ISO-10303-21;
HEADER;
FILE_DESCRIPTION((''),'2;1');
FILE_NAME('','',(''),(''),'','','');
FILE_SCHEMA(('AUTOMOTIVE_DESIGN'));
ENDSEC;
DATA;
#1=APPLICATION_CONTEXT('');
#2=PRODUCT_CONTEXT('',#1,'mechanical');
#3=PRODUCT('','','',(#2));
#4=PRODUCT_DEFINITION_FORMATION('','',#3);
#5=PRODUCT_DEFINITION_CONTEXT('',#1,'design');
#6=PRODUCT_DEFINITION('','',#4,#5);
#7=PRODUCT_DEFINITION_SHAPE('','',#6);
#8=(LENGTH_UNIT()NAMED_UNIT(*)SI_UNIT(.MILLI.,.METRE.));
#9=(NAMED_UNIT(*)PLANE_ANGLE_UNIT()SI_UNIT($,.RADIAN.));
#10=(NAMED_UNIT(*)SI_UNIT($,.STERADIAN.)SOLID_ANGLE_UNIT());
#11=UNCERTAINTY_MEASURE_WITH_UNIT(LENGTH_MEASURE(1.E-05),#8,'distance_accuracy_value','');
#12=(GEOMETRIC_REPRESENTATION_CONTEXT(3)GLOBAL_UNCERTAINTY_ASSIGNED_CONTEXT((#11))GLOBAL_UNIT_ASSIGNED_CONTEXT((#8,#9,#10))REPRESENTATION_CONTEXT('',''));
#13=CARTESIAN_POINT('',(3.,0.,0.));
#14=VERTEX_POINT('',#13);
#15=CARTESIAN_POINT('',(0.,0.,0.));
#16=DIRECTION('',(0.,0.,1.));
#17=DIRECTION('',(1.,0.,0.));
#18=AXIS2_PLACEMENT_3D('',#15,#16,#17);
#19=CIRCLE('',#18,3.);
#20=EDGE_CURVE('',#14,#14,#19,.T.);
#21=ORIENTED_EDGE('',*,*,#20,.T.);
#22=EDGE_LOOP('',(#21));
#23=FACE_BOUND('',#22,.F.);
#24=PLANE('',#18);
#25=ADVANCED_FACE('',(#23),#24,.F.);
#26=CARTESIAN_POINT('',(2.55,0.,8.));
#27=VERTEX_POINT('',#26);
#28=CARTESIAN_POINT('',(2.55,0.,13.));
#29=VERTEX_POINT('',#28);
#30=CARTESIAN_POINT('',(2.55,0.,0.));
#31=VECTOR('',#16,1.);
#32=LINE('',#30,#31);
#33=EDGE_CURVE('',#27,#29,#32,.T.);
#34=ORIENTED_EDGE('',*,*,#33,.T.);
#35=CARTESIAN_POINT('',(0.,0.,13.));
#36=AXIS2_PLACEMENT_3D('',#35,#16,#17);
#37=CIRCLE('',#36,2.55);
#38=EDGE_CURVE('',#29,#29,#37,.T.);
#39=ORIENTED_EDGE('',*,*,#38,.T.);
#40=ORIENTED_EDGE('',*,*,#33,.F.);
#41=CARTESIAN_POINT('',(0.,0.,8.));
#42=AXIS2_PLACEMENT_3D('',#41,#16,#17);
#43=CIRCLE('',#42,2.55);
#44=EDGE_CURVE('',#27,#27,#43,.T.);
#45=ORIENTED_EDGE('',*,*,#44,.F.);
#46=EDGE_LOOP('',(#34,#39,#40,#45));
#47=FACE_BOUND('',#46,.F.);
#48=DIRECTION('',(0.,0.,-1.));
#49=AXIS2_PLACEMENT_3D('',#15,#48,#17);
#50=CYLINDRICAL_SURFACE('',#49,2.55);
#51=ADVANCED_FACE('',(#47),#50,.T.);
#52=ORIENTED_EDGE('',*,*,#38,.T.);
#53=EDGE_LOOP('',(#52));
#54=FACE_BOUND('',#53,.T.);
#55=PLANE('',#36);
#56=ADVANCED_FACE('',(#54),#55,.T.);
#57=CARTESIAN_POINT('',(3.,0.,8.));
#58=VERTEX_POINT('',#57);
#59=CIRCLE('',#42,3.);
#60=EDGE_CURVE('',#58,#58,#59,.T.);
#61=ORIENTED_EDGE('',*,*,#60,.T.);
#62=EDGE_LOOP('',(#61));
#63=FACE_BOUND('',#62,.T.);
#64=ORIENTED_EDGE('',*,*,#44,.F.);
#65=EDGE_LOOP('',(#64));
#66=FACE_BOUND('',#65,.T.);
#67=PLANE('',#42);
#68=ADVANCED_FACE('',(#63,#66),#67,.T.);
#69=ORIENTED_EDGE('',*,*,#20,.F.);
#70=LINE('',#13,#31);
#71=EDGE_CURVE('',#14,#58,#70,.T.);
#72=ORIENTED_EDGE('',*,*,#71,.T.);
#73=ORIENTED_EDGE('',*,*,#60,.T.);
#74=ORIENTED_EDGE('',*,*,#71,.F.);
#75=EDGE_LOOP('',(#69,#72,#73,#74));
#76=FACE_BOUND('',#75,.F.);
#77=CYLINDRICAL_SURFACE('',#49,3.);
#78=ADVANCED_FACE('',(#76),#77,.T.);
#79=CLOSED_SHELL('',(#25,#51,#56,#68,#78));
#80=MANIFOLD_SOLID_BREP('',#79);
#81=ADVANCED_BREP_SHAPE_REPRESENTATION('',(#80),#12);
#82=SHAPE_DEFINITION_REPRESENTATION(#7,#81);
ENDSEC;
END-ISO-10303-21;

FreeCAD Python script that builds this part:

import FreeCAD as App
import Part
import Sketcher
Q = App.Units.Quantity

doc = App.newDocument("Part")
body = doc.addObject("PartDesign::Body", "Body")

sketch1 = body.newObject("Sketcher::SketchObject", "Sketch")
sketch1.AttachmentSupport = (doc.getObject("XY_Plane"), [""])
sketch1.MapMode = "FlatFace"
sketch1.addGeometry(Part.Circle(App.Vector(0, 0, 0), App.Vector(0, 0, 1), 2.55), False)
sketch1.addConstraint([
    Sketcher.Constraint("Coincident", 0, 3, -1, 1),
    Sketcher.Constraint("Diameter", 0, Q("5.1 mm")),
])
pad1 = body.newObject("PartDesign::Pad", "Pad")
pad1.Profile = sketch1
pad1.Length = 13

sketch2 = body.newObject("Sketcher::SketchObject", "Sketch001")
sketch2.AttachmentSupport = (doc.getObject("XY_Plane"), [""])
sketch2.MapMode = "FlatFace"
sketch2.addGeometry([
    Part.Circle(App.Vector(0, 0, 0), App.Vector(0, 0, 1), 3),
    Part.Circle(App.Vector(0, 0, 0), App.Vector(0, 0, 1), 2.55),
], False)
sketch2.addConstraint([
    Sketcher.Constraint("Coincident", 0, 3, -1, 1),
    Sketcher.Constraint("Coincident", 1, 3, -1, 1),
    Sketcher.Constraint("Diameter", 0, Q("6 mm")),
    Sketcher.Constraint("Diameter", 1, Q("5.1 mm")),
])
pad2 = body.newObject("PartDesign::Pad", "Pad001")
pad2.Profile = sketch2
pad2.Length = 8

doc.recompute()
